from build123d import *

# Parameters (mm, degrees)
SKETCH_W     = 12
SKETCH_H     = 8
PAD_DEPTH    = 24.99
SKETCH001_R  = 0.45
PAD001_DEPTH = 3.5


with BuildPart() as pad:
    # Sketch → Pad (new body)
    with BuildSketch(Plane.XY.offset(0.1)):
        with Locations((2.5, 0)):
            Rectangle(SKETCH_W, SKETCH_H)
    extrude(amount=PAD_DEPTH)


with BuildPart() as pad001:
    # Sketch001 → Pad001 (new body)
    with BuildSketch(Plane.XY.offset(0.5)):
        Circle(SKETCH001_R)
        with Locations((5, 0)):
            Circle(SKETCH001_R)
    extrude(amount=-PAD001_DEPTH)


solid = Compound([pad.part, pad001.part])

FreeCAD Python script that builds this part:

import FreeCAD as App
import Part
import Sketcher


def add_polygon(sketch, points):
    """Adds a closed chain of lines whose ends are joined by coincident constraints."""
    first, n = sketch.GeometryCount, len(points)
    for a, b in zip(points, points[1:] + points[:1]):
        sketch.addGeometry(Part.LineSegment(App.Vector(*a, 0), App.Vector(*b, 0)), False)
    for i in range(n):
        sketch.addConstraint(Sketcher.Constraint("Coincident", first + i, 2, first + (i + 1) % n, 1))

doc = App.newDocument("Part")
params = doc.addObject("Spreadsheet::Sheet", "Params")
for row, (alias, value) in enumerate([
    ("sketch1_width", "12 mm"),
    ("sketch1_height", "8 mm"),
    ("pad1_length", "24.99 mm"),
    ("sketch2_diameter", "0.9 mm"),
    ("pad2_length", "3.5 mm"),
], start=1):
    params.set(f"A{row}", alias)
    params.set(f"B{row}", "=" + value)
    params.setAlias(f"B{row}", alias)

body = doc.addObject("PartDesign::Body", "Body")

# Sketch on XY plane
sketch1 = body.newObject("Sketcher::SketchObject", "Sketch")
sketch1.AttachmentSupport = (doc.getObject("XY_Plane"), [""])
sketch1.MapMode = "FlatFace"
sketch1.AttachmentOffset = App.Placement(App.Vector(0, 0, 0.1), App.Rotation())
add_polygon(sketch1, [(-3.5, 4), (-3.5, -4), (8.5, -4), (8.5, 4)])  # lines 0-3
sketch1.addConstraint([
    Sketcher.Constraint("Vertical", 0),
    Sketcher.Constraint("Horizontal", 1),
    Sketcher.Constraint("Vertical", 2),
    Sketcher.Constraint("Horizontal", 3),
    Sketcher.Constraint("DistanceX", 1, 1, 1, 2, 12.0),
    Sketcher.Constraint("DistanceY", 0, 2, 0, 1, 8.0),
    Sketcher.Constraint("DistanceY", 0, 2, -1, 1, 4.0),
    Sketcher.Constraint("DistanceX", 0, 2, -1, 1, 3.5),
])
sketch1.setExpression("Constraints[8]", "Params.sketch1_width")
sketch1.setExpression("Constraints[9]", "Params.sketch1_height")
pad1 = body.newObject("PartDesign::Pad", "Pad")
pad1.Profile = sketch1
pad1.setExpression("Length", "Params.pad1_length")
body2 = doc.addObject("PartDesign::Body", "Body001")
body2.AllowCompound = True

# Sketch on XY plane
sketch2 = body2.newObject("Sketcher::SketchObject", "Sketch001")
sketch2.AttachmentSupport = (doc.getObject("XY_Plane001"), [""])
sketch2.MapMode = "FlatFace"
sketch2.AttachmentOffset = App.Placement(App.Vector(0, 0, 0.5), App.Rotation())
sketch2.addGeometry([
    Part.Circle(App.Vector(0, 0, 0), App.Vector(0, 0, 1), 0.45),
    Part.Circle(App.Vector(5, 0, 0), App.Vector(0, 0, 1), 0.45),
], False)
sketch2.addConstraint([
    Sketcher.Constraint("Coincident", 0, 3, -1, 1),
    Sketcher.Constraint("Equal", 0, 1),
    Sketcher.Constraint("PointOnObject", 1, 3, -1),
    Sketcher.Constraint("Diameter", 0, 0.9),
    Sketcher.Constraint("DistanceX", -1, 1, 1, 3, 5.0),
])
sketch2.setExpression("Constraints[3]", "Params.sketch2_diameter")
pad2 = body2.newObject("PartDesign::Pad", "Pad001")
pad2.Profile = sketch2
pad2.setExpression("Length", "Params.pad2_length")
pad2.Reversed = True

doc.recompute()
